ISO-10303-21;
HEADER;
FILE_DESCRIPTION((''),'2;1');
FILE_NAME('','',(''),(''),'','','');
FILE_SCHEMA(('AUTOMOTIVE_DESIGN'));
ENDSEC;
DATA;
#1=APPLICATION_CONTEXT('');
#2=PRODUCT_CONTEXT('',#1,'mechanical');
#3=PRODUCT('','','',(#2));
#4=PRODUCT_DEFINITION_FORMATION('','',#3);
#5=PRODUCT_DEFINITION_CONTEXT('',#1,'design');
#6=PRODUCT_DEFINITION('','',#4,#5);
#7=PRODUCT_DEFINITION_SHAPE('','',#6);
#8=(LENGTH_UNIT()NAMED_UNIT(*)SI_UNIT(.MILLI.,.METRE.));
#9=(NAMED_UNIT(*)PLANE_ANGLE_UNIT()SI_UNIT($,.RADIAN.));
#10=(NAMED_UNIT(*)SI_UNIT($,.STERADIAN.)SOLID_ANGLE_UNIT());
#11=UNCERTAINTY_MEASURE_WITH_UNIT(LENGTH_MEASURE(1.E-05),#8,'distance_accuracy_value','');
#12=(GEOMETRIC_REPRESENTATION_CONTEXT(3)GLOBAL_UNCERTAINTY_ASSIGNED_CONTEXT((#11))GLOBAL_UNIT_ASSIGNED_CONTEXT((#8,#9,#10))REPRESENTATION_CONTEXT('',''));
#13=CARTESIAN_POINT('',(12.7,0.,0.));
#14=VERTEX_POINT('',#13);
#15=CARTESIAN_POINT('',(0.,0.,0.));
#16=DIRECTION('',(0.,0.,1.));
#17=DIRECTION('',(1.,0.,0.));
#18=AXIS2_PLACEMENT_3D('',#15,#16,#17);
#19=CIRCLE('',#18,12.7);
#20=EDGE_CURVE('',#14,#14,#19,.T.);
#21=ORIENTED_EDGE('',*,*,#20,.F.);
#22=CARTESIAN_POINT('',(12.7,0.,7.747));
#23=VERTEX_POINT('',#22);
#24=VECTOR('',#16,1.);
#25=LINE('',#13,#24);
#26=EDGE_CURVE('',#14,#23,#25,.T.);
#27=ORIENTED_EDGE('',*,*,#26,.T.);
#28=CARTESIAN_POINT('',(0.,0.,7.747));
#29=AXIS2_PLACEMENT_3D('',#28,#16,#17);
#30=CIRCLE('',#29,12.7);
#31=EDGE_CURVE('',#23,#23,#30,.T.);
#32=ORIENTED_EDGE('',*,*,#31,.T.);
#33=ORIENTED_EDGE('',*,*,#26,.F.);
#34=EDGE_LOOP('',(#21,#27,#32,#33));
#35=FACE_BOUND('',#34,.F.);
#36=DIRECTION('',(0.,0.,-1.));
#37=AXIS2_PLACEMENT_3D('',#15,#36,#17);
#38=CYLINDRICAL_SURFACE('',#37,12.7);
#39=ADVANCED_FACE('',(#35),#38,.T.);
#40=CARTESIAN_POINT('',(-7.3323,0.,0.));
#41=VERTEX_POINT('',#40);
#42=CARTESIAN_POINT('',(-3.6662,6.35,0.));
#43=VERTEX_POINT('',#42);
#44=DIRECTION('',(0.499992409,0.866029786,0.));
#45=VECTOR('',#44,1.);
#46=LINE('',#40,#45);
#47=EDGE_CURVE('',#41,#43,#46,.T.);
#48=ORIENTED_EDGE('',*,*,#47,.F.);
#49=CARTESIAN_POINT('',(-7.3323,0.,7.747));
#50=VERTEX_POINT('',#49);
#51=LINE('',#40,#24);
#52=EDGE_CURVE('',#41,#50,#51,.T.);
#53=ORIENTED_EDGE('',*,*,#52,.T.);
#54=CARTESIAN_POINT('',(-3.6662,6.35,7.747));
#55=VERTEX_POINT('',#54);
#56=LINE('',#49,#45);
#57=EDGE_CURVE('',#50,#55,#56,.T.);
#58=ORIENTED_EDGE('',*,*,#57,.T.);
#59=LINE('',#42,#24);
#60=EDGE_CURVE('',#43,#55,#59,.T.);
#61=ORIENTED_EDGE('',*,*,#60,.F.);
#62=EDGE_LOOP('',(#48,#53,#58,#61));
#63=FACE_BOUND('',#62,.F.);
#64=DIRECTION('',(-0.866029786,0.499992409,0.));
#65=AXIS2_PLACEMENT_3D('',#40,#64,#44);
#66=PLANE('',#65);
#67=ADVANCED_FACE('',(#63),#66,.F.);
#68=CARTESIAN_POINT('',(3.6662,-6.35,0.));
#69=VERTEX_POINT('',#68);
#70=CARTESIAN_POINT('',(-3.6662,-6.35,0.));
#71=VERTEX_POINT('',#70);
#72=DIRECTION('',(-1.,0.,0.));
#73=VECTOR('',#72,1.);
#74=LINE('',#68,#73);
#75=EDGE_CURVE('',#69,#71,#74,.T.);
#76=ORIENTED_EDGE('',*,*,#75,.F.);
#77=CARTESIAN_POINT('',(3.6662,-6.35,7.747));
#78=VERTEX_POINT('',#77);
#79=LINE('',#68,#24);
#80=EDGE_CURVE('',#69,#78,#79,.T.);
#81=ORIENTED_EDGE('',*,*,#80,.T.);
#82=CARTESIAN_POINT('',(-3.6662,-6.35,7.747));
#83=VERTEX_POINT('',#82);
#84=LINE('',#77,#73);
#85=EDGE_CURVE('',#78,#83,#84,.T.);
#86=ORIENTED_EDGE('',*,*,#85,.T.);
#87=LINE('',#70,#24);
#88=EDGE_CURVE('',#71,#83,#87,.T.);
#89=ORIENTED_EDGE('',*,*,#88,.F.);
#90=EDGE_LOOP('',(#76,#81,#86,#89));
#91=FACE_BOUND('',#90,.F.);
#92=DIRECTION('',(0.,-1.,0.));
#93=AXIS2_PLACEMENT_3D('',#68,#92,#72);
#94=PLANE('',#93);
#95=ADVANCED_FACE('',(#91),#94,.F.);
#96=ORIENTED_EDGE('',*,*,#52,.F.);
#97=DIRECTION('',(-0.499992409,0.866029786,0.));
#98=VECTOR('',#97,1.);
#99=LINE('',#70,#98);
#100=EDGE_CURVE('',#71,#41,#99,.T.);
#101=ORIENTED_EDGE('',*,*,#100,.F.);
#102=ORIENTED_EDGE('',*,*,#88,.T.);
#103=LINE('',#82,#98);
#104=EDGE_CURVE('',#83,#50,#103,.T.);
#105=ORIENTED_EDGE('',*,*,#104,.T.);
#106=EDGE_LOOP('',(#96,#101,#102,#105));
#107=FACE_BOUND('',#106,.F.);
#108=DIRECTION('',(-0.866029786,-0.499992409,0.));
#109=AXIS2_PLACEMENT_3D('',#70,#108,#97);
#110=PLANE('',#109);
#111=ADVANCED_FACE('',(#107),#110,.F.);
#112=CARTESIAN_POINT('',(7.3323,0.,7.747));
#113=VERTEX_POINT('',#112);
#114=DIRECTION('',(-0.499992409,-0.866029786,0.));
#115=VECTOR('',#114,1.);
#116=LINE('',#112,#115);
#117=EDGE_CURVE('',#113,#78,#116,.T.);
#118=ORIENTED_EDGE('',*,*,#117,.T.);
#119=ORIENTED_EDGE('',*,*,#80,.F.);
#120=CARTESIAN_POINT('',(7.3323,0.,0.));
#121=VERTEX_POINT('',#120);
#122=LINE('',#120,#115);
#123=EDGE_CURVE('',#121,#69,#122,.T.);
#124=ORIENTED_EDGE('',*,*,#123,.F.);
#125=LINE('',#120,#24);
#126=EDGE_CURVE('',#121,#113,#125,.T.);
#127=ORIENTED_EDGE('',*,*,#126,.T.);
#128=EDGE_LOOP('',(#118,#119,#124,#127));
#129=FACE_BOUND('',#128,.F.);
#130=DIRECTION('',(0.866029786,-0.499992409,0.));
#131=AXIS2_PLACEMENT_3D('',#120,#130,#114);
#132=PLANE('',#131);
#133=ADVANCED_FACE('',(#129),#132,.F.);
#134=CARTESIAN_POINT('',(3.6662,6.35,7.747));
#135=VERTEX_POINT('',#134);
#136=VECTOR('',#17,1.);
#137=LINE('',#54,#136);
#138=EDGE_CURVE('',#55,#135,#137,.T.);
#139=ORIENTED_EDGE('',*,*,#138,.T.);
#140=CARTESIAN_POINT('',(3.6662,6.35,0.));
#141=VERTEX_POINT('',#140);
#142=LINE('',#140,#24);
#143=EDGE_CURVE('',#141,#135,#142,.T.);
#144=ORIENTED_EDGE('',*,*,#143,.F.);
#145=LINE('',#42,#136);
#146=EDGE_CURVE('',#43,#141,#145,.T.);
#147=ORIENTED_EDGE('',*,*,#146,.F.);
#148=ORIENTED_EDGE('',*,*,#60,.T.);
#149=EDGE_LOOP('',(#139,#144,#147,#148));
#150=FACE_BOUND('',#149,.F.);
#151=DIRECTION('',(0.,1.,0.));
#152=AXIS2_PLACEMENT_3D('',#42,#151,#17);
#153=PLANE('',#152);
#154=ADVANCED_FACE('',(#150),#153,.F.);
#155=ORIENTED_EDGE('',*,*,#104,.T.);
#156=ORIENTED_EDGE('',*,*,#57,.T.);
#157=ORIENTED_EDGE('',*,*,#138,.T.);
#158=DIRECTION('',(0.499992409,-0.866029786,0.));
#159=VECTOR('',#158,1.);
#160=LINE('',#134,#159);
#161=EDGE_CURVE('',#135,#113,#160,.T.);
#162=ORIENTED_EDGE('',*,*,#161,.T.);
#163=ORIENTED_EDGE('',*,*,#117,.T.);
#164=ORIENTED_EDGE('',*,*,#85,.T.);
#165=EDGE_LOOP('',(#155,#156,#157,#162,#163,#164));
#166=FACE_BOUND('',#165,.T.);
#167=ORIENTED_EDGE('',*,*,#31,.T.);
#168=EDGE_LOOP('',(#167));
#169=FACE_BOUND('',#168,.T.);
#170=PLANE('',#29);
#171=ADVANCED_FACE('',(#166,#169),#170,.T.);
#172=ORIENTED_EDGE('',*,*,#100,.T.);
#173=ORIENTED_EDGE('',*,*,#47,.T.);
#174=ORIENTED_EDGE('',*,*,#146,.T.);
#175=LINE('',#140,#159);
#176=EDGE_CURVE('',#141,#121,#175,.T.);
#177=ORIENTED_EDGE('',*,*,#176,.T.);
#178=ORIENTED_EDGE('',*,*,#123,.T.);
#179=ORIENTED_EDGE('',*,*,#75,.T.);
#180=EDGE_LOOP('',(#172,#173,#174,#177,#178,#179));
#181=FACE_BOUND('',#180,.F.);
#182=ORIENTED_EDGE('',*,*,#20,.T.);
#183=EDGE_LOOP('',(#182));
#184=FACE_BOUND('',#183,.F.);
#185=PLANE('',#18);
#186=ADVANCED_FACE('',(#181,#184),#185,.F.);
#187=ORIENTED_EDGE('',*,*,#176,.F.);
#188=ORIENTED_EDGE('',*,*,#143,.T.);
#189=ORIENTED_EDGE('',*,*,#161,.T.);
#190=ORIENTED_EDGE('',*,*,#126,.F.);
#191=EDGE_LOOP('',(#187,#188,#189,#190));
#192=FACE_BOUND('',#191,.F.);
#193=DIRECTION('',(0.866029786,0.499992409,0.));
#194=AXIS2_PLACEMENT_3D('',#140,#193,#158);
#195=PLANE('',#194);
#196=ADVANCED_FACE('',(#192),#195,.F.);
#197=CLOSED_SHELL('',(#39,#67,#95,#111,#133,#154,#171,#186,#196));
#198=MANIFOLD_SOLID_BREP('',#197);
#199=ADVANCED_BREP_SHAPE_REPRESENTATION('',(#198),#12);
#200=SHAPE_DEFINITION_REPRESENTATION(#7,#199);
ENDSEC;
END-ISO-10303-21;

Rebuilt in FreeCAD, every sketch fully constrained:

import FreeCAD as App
import Part
import Sketcher

V = App.Vector
Q = App.Units.Quantity


def add_polygon(sketch, points):
    """Adds a closed chain of lines whose ends are joined by coincident constraints."""
    first, n = sketch.GeometryCount, len(points)
    for a, b in zip(points, points[1:] + points[:1]):
        sketch.addGeometry(Part.LineSegment(App.Vector(*a, 0), App.Vector(*b, 0)), False)
    for i in range(n):
        sketch.addConstraint(Sketcher.Constraint("Coincident", first + i, 2, first + (i + 1) % n, 1))

doc = App.newDocument("Part")
body = doc.addObject("PartDesign::Body", "Body")

# Sketch on XY plane
sketch1 = body.newObject("Sketcher::SketchObject", "Sketch")
sketch1.AttachmentSupport = (doc.getObject("XY_Plane"), [""])
sketch1.MapMode = "FlatFace"
sketch1.addGeometry(Part.Circle(V(0, 0, 0), V(0, 0, 1), 13), False)  # 0
add_polygon(sketch1, [(-4, 6), (4, 6), (7, 0), (4, -6), (-4, -6), (-7, 0)])  # lines 1-6
sketch1.addConstraint([
    Sketcher.Constraint("Horizontal", 1),
    Sketcher.Constraint("Horizontal", 4),
    Sketcher.Constraint("Coincident", 0, 3, -1, 1),
    Sketcher.Constraint("Symmetric", 1, 2, 4, 2, -1, 1),
    Sketcher.Constraint("Symmetric", 2, 2, 5, 2, -1, 1),
    Sketcher.Constraint("PointOnObject", 2, 2, -1),
    Sketcher.Constraint("Parallel", 3, 6),
    Sketcher.Constraint("Vertical", 1, 2, 3, 2),
    Sketcher.Constraint("Diameter", 0, Q("1 in")),
    Sketcher.Constraint("DistanceY", 3, 2, 1, 2, Q("0.5 in")),
    Sketcher.Constraint("Angle", 2, Q("-60.0005 deg")),
    Sketcher.Constraint("DistanceX", 4, 2, 2, 2, Q("0.433 in")),
])
pad1 = body.newObject("PartDesign::Pad", "Pad")
pad1.Profile = sketch1
pad1.Length = Q("0.305 in")

doc.recompute()
